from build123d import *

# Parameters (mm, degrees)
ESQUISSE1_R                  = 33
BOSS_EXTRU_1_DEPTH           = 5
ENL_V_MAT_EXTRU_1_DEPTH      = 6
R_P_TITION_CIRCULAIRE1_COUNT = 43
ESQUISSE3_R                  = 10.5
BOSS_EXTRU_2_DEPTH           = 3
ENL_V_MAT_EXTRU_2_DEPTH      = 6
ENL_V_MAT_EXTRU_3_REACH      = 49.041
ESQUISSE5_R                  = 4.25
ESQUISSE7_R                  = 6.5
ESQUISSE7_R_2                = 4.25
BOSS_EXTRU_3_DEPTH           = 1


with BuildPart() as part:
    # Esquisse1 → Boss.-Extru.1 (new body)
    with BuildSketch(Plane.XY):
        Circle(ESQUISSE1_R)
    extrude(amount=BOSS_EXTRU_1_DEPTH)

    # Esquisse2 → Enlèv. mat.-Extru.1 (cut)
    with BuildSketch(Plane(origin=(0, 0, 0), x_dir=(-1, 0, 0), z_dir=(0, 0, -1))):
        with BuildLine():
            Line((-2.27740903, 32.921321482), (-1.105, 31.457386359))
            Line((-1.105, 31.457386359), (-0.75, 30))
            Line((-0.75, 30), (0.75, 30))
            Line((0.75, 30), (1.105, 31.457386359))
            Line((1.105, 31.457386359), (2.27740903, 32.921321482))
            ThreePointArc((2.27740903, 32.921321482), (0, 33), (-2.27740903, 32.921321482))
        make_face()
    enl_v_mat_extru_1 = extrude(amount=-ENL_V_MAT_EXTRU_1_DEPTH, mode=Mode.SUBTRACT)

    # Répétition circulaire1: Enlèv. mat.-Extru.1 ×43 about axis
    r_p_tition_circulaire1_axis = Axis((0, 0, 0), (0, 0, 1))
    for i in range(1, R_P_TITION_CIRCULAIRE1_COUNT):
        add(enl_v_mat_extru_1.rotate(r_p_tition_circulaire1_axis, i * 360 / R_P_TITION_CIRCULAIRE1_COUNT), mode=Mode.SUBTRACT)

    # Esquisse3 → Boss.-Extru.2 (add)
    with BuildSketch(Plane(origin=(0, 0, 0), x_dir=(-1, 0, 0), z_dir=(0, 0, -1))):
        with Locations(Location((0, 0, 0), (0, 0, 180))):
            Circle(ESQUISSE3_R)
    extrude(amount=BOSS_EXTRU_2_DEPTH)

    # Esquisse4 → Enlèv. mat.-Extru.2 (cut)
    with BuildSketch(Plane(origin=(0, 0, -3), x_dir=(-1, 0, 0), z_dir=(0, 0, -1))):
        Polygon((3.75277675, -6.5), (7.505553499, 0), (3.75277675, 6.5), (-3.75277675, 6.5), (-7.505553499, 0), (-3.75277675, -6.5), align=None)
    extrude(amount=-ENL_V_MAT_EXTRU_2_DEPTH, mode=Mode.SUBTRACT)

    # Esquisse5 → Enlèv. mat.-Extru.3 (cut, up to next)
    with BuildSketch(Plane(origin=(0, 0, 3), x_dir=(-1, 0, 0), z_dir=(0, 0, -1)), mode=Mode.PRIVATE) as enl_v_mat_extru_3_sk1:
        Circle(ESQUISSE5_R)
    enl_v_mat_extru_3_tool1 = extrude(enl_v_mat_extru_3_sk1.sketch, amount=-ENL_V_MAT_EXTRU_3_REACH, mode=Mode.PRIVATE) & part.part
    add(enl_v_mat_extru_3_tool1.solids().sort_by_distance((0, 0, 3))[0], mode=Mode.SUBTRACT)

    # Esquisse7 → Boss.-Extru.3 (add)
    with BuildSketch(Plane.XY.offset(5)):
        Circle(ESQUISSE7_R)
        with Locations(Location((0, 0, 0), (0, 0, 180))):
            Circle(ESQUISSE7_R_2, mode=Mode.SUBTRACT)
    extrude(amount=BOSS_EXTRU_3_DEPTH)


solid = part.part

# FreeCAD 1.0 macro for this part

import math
import FreeCAD as App
import Part
import Sketcher
from FreeCAD import Vector
Q = App.Units.Quantity

doc = App.newDocument("Part")
params = doc.addObject("Spreadsheet::Sheet", "Params")
for row, (alias, value) in enumerate([
    ("sketch1_diameter", "66 mm"),
    ("pad1_length", "5 mm"),
    ("sketch2_radius", "33 mm"),
    ("sketch2_width", "1.5 mm"),
    ("sketch2_length", "1.5 mm"),
    ("pocket1_length", "6 mm"),
    ("sketch3_diameter", "21 mm"),
    ("pad2_length", "3 mm"),
    ("pocket2_length", "6 mm"),
    ("sketch5_diameter", "8.5 mm"),
    ("sketch6_diameter", "13 mm"),
    ("sketch6_diameter2", "8.5 mm"),
    ("pad3_length", "1 mm"),
], start=1):
    params.set(f"A{row}", alias)
    params.set(f"B{row}", "=" + value)
    params.setAlias(f"B{row}", alias)

body = doc.addObject("PartDesign::Body", "Body")

# Sketch on XY plane
sketch1 = doc.addObject("Sketcher::SketchObject", "Sketch")
body.addObject(sketch1)
sketch1.AttachmentSupport = (doc.XY_Plane, [""])
sketch1.MapMode = "FlatFace"
sketch1.addGeometry(Part.Circle(Vector(0, 0, 0), Vector(0, 0, 1), 33), False)
sketch1.addConstraint([
    Sketcher.Constraint("Coincident", 0, 3, -1, 1),
    Sketcher.Constraint("Diameter", 0, Q("66 mm")),
])
sketch1.setExpression("Constraints[1]", "Params.sketch1_diameter")
pad1 = doc.addObject("PartDesign::Pad", "Pad")
body.addObject(pad1)
pad1.Profile = sketch1
pad1.setExpression("Length", "Params.pad1_length")

# Sketch on XY plane
sketch2 = doc.addObject("Sketcher::SketchObject", "Sketch001")
body.addObject(sketch2)
sketch2.AttachmentSupport = (doc.XY_Plane, [""])
sketch2.MapMode = "FlatFace"
sketch2.addGeometry([
    Part.LineSegment(Vector(2.277409, 32.921321, 0), Vector(1.105, 31.457386, 0)),  # 0
    Part.LineSegment(Vector(1.105, 31.457386, 0), Vector(0.75, 30, 0)),  # 1
    Part.LineSegment(Vector(0.75, 30, 0), Vector(-0.75, 30, 0)),  # 2
    Part.LineSegment(Vector(-0.75, 30, 0), Vector(-1.105, 31.457386, 0)),  # 3
    Part.LineSegment(Vector(-1.105, 31.457386, 0), Vector(-2.277409, 32.921321, 0)),  # 4
    Part.ArcOfCircle(Part.Circle(Vector(0, 0, 0), Vector(0, 0, 1), 33), math.radians(86.042736), math.radians(93.957264)),  # 5
], False)
sketch2.addConstraint([
    Sketcher.Constraint("Coincident", 0, 2, 1, 1),
    Sketcher.Constraint("Coincident", 1, 2, 2, 1),
    Sketcher.Constraint("Coincident", 2, 2, 3, 1),
    Sketcher.Constraint("Coincident", 3, 2, 4, 1),
    Sketcher.Constraint("Coincident", 4, 2, 5, 2),
    Sketcher.Constraint("Coincident", 5, 1, 0, 1),
    Sketcher.Constraint("Horizontal", 2),
    Sketcher.Constraint("Coincident", 5, 3, -1, 1),
    Sketcher.Constraint("Symmetric", 0, 2, 3, 2, -2),
    Sketcher.Constraint("Horizontal", 4, 2, 5, 1),
    Sketcher.Constraint("Equal", 1, 3),
    Sketcher.Constraint("Radius", 5, Q("33 mm")),
    Sketcher.Constraint("DistanceX", 2, 2, 2, 1, Q("1.5 mm")),
    Sketcher.Constraint("DistanceY", -1, 1, 1, 2, Q("30 mm")),
    Sketcher.Constraint("Distance", 1, Q("1.5 mm")),
    Sketcher.Constraint("DistanceX", 3, 2, 0, 2, Q("2.21 mm")),
    Sketcher.Constraint("Distance", 0, Q("1.87554 mm")),
])
sketch2.setExpression("Constraints[11]", "Params.sketch2_radius")
sketch2.setExpression("Constraints[12]", "Params.sketch2_width")
sketch2.setExpression("Constraints[14]", "Params.sketch2_length")
pocket1 = doc.addObject("PartDesign::Pocket", "Pocket")
body.addObject(pocket1)
pocket1.Profile = sketch2
pocket1.setExpression("Length", "Params.pocket1_length")
pocket1.Reversed = True
doc.recompute()

polarpattern = doc.addObject("PartDesign::PolarPattern", "PolarPattern")
body.addObject(polarpattern)
polarpattern.Originals = [pocket1]
polarpattern.Axis = (doc.Z_Axis, [""])
polarpattern.Angle = 360
polarpattern.Occurrences = 43
body.Tip = polarpattern

# Sketch on XY plane
sketch3 = doc.addObject("Sketcher::SketchObject", "Sketch002")
body.addObject(sketch3)
sketch3.AttachmentSupport = (doc.XY_Plane, [""])
sketch3.MapMode = "FlatFace"
sketch3.addGeometry(Part.Circle(Vector(0, 0, 0), Vector(0, 0, 1), 10.5), False)
sketch3.addConstraint([
    Sketcher.Constraint("Coincident", 0, 3, -1, 1),
    Sketcher.Constraint("Diameter", 0, Q("21 mm")),
])
sketch3.setExpression("Constraints[1]", "Params.sketch3_diameter")
pad2 = doc.addObject("PartDesign::Pad", "Pad001")
body.addObject(pad2)
pad2.Profile = sketch3
pad2.setExpression("Length", "Params.pad2_length")
pad2.Reversed = True

# Sketch on XY plane
sketch4 = doc.addObject("Sketcher::SketchObject", "Sketch003")
body.addObject(sketch4)
sketch4.AttachmentSupport = (doc.XY_Plane, [""])
sketch4.MapMode = "FlatFace"
sketch4.AttachmentOffset = App.Placement(Vector(0, 0, -3), App.Rotation())
sketch4.addGeometry([
    Part.LineSegment(Vector(-3.752777, -6.5, 0), Vector(-7.505553, 0, 0)),  # 0
    Part.LineSegment(Vector(-7.505553, 0, 0), Vector(-3.752777, 6.5, 0)),  # 1
    Part.LineSegment(Vector(-3.752777, 6.5, 0), Vector(3.752777, 6.5, 0)),  # 2
    Part.LineSegment(Vector(3.752777, 6.5, 0), Vector(7.505553, 0, 0)),  # 3
    Part.LineSegment(Vector(7.505553, 0, 0), Vector(3.752777, -6.5, 0)),  # 4
    Part.LineSegment(Vector(3.752777, -6.5, 0), Vector(-3.752777, -6.5, 0)),  # 5
], False)
sketch4.addConstraint([
    Sketcher.Constraint("Coincident", 0, 2, 1, 1),
    Sketcher.Constraint("Coincident", 1, 2, 2, 1),
    Sketcher.Constraint("Coincident", 2, 2, 3, 1),
    Sketcher.Constraint("Coincident", 3, 2, 4, 1),
    Sketcher.Constraint("Coincident", 4, 2, 5, 1),
    Sketcher.Constraint("Coincident", 5, 2, 0, 1),
    Sketcher.Constraint("Horizontal", 2),
    Sketcher.Constraint("Horizontal", 5),
    Sketcher.Constraint("Symmetric", 0, 2, 3, 2, -1, 1),
    Sketcher.Constraint("Symmetric", 1, 2, 4, 2, -1, 1),
    Sketcher.Constraint("PointOnObject", 0, 2, -1),
    Sketcher.Constraint("Parallel", 0, 3),
    Sketcher.Constraint("Vertical", 2, 2, 4, 2),
    Sketcher.Constraint("Angle", 0, Q("120 deg")),
    Sketcher.Constraint("DistanceY", 4, 2, 2, 2, Q("13 mm")),
    Sketcher.Constraint("DistanceX", 2, 1, 2, 2, Q("7.505554 mm")),
])
pocket2 = doc.addObject("PartDesign::Pocket", "Pocket001")
body.addObject(pocket2)
pocket2.Profile = sketch4
pocket2.setExpression("Length", "Params.pocket2_length")
pocket2.Reversed = True

# Sketch on XY plane
sketch5 = doc.addObject("Sketcher::SketchObject", "Sketch004")
body.addObject(sketch5)
sketch5.AttachmentSupport = (doc.XY_Plane, [""])
sketch5.MapMode = "FlatFace"
sketch5.AttachmentOffset = App.Placement(Vector(0, 0, 3), App.Rotation())
sketch5.addGeometry(Part.Circle(Vector(0, 0, 0), Vector(0, 0, 1), 4.25), False)
sketch5.addConstraint([
    Sketcher.Constraint("Coincident", 0, 3, -1, 1),
    Sketcher.Constraint("Diameter", 0, Q("8.5 mm")),
])
sketch5.setExpression("Constraints[1]", "Params.sketch5_diameter")
pocket3 = doc.addObject("PartDesign::Pocket", "Pocket002")
body.addObject(pocket3)
pocket3.Profile = sketch5
pocket3.Type = "UpToFirst"
pocket3.Reversed = True

# Sketch on XY plane
sketch6 = doc.addObject("Sketcher::SketchObject", "Sketch005")
body.addObject(sketch6)
sketch6.AttachmentSupport = (doc.XY_Plane, [""])
sketch6.MapMode = "FlatFace"
sketch6.AttachmentOffset = App.Placement(Vector(0, 0, 5), App.Rotation())
sketch6.addGeometry([
    Part.Circle(Vector(0, 0, 0), Vector(0, 0, 1), 6.5),
    Part.Circle(Vector(0, 0, 0), Vector(0, 0, 1), 4.25),
], False)
sketch6.addConstraint([
    Sketcher.Constraint("Coincident", 0, 3, -1, 1),
    Sketcher.Constraint("Coincident", 1, 3, -1, 1),
    Sketcher.Constraint("Diameter", 0, Q("13 mm")),
    Sketcher.Constraint("Diameter", 1, Q("8.5 mm")),
])
sketch6.setExpression("Constraints[2]", "Params.sketch6_diameter")
sketch6.setExpression("Constraints[3]", "Params.sketch6_diameter2")
pad3 = doc.addObject("PartDesign::Pad", "Pad002")
body.addObject(pad3)
pad3.Profile = sketch6
pad3.setExpression("Length", "Params.pad3_length")

doc.recompute()
